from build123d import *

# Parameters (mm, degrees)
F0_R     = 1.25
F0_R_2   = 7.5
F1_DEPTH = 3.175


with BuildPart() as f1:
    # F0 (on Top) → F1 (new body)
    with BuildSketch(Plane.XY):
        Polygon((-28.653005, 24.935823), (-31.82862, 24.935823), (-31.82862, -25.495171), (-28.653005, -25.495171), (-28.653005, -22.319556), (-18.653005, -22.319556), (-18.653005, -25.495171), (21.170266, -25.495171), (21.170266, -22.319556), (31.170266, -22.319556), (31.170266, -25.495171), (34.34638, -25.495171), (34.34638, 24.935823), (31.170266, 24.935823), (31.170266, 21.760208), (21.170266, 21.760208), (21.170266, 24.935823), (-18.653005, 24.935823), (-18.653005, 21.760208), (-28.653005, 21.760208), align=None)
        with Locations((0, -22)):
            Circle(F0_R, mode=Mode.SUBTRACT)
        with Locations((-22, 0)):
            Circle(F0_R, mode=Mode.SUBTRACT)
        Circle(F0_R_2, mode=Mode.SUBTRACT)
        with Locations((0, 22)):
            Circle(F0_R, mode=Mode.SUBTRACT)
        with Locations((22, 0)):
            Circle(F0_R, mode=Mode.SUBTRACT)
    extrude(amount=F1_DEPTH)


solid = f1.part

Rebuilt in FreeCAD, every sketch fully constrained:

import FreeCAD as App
import Part
import Sketcher

V = App.Vector


def add_polygon(sketch, points):
    """Adds a closed chain of lines whose ends are joined by coincident constraints."""
    first, n = sketch.GeometryCount, len(points)
    for a, b in zip(points, points[1:] + points[:1]):
        sketch.addGeometry(Part.LineSegment(App.Vector(*a, 0), App.Vector(*b, 0)), False)
    for i in range(n):
        sketch.addConstraint(Sketcher.Constraint("Coincident", first + i, 2, first + (i + 1) % n, 1))

doc = App.newDocument("Part")
params = doc.addObject("Spreadsheet::Sheet", "Params")
for row, (alias, value) in enumerate([
    ("sketch1_diameter", "15 mm"),
    ("sketch1_diameter2", "2.5 mm"),
    ("sketch1_width", "10 mm"),
    ("pad1_length", "3.175 mm"),
], start=1):
    params.set(f"A{row}", alias)
    params.set(f"B{row}", "=" + value)
    params.setAlias(f"B{row}", alias)

body = doc.addObject("PartDesign::Body", "Body")

# Sketch on XY plane
sketch1 = doc.addObject("Sketcher::SketchObject", "Sketch")
body.addObject(sketch1)
sketch1.AttachmentSupport = (doc.XY_Plane, [""])
sketch1.MapMode = "FlatFace"
add_polygon(sketch1, [(-28.7, 24.9), (-31.8, 24.9), (-31.8, -25.5), (-28.7, -25.5), (-28.7, -22.3), (-18.7, -22.3), (-18.7, -25.5), (21.2, -25.5), (21.2, -22.3), (31.2, -22.3), (31.2, -25.5), (34.3, -25.5), (34.3, 24.9), (31.2, 24.9), (31.2, 21.8), (21.2, 21.8), (21.2, 24.9), (-18.7, 24.9), (-18.7, 21.8), (-28.7, 21.8)])  # lines 0-19
sketch1.addGeometry(Part.Circle(V(0, -22, 0), V(0, 0, 1), 1.2), False)  # 20
sketch1.addGeometry(Part.Circle(V(-22, 0, 0), V(0, 0, 1), 1.2), False)  # 21
sketch1.addGeometry(Part.Circle(V(0, 0, 0), V(0, 0, 1), 7.5), False)  # 22
sketch1.addGeometry(Part.Circle(V(22, 0, 0), V(0, 0, 1), 1.2), False)  # 23
sketch1.addGeometry(Part.Circle(V(0, 22, 0), V(0, 0, 1), 1.2), False)  # 24
sketch1.addConstraint([
    Sketcher.Constraint("Horizontal", 0),
    Sketcher.Constraint("Vertical", 1),
    Sketcher.Constraint("Horizontal", 2),
    Sketcher.Constraint("Vertical", 3),
    Sketcher.Constraint("Horizontal", 4),
    Sketcher.Constraint("Vertical", 5),
    Sketcher.Constraint("Horizontal", 6),
    Sketcher.Constraint("Vertical", 7),
    Sketcher.Constraint("Horizontal", 8),
    Sketcher.Constraint("Vertical", 9),
    Sketcher.Constraint("Horizontal", 10),
    Sketcher.Constraint("Vertical", 11),
    Sketcher.Constraint("Horizontal", 12),
    Sketcher.Constraint("Vertical", 13),
    Sketcher.Constraint("Horizontal", 14),
    Sketcher.Constraint("Vertical", 15),
    Sketcher.Constraint("Horizontal", 16),
    Sketcher.Constraint("Vertical", 17),
    Sketcher.Constraint("Horizontal", 18),
    Sketcher.Constraint("Vertical", 19),
    Sketcher.Constraint("Coincident", 22, 3, -1, 1),
    Sketcher.Constraint("Equal", 20, 21),
    Sketcher.Constraint("Equal", 21, 23),
    Sketcher.Constraint("Equal", 23, 24),
    Sketcher.Constraint("Symmetric", 21, 3, 23, 3, -1, 1),
    Sketcher.Constraint("Symmetric", 20, 3, 24, 3, -1, 1),
    Sketcher.Constraint("PointOnObject", 20, 3, -2),
    Sketcher.Constraint("PointOnObject", 21, 3, -1),
    Sketcher.Constraint("Horizontal", 2, 2, 5, 2),
    Sketcher.Constraint("Horizontal", 4, 2, 7, 2),
    Sketcher.Constraint("Horizontal", 6, 2, 9, 2),
    Sketcher.Constraint("Horizontal", 0, 2, 11, 2),
    Sketcher.Constraint("Horizontal", 12, 2, 15, 2),
    Sketcher.Constraint("Horizontal", 14, 2, 17, 2),
    Sketcher.Constraint("Vertical", 9, 2, 12, 2),
    Sketcher.Constraint("Vertical", 7, 2, 14, 2),
    Sketcher.Constraint("Vertical", 5, 2, 16, 2),
    Sketcher.Constraint("Vertical", 3, 2, 18, 2),
    Sketcher.Constraint("Equal", 4, 8),
    Sketcher.Constraint("Equal", 2, 3),
    Sketcher.Constraint("Equal", 9, 13),
    Sketcher.Constraint("Diameter", 22, 15.0),
    Sketcher.Constraint("Diameter", 20, 2.5),
    Sketcher.Constraint("DistanceX", 4, 1, 4, 2, 10.0),
    Sketcher.Constraint("DistanceY", 20, 3, -1, 1, 22.0),
    Sketcher.Constraint("DistanceX", 21, 3, -1, 1, 22.0),
    Sketcher.Constraint("DistanceX", 6, 1, 6, 2, 39.823271),
    Sketcher.Constraint("DistanceX", 0, 2, 0, 1, 3.175615),
    Sketcher.Constraint("DistanceX", 10, 1, 10, 2, 3.176114),
    Sketcher.Constraint("DistanceY", 1, 2, 1, 1, 50.430994),
    Sketcher.Constraint("DistanceX", 0, 2, -1, 1, 31.82862),
    Sketcher.Constraint("DistanceY", 1, 2, -1, 1, 25.495171),
])
sketch1.setExpression("Constraints[61]", "Params.sketch1_diameter")
sketch1.setExpression("Constraints[62]", "Params.sketch1_diameter2")
sketch1.setExpression("Constraints[63]", "Params.sketch1_width")
pad1 = doc.addObject("PartDesign::Pad", "Pad")
body.addObject(pad1)
pad1.Profile = sketch1
pad1.setExpression("Length", "Params.pad1_length")

doc.recompute()
